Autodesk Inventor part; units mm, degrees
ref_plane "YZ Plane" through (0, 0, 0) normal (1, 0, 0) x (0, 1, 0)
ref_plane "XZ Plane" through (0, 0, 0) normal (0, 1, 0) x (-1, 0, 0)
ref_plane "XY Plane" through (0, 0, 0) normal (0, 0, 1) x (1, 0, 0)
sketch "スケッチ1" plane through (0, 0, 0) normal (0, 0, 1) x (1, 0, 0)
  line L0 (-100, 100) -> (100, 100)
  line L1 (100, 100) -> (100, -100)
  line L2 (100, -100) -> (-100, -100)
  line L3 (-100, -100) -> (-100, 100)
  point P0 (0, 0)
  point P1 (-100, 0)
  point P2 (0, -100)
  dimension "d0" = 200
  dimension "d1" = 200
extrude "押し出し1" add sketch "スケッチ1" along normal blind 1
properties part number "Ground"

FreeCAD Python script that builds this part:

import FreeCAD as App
import Part
import Sketcher
Q = App.Units.Quantity

doc = App.newDocument("Part")
body = doc.addObject("PartDesign::Body", "Body")

# Sketch on XY plane
sketch1 = doc.addObject("Sketcher::SketchObject", "Sketch")
body.addObject(sketch1)
sketch1.AttachmentSupport = (doc.XY_Plane, [""])
sketch1.MapMode = "FlatFace"
sketch1.addGeometry([
    Part.LineSegment(App.Vector(100, 100, 0), App.Vector(-100, 100, 0)),
    Part.LineSegment(App.Vector(-100, 100, 0), App.Vector(-100, -100, 0)),
    Part.LineSegment(App.Vector(-100, -100, 0), App.Vector(100, -100, 0)),
    Part.LineSegment(App.Vector(100, -100, 0), App.Vector(100, 100, 0)),
], False)
sketch1.addConstraint([
    Sketcher.Constraint("Coincident", 0, 2, 1, 1),
    Sketcher.Constraint("Coincident", 1, 2, 2, 1),
    Sketcher.Constraint("Coincident", 2, 2, 3, 1),
    Sketcher.Constraint("Coincident", 3, 2, 0, 1),
    Sketcher.Constraint("Horizontal", 0),
    Sketcher.Constraint("Vertical", 1),
    Sketcher.Constraint("Horizontal", 2),
    Sketcher.Constraint("Vertical", 3),
    Sketcher.Constraint("Symmetric", 0, 2, 2, 2, -1, 1),
    Sketcher.Constraint("Equal", 2, 1),
    Sketcher.Constraint("DistanceX", 0, 2, 0, 1, Q("200 mm")),
])
pad1 = doc.addObject("PartDesign::Pad", "Pad")
body.addObject(pad1)
pad1.Profile = sketch1
pad1.Length = 1

doc.recompute()
